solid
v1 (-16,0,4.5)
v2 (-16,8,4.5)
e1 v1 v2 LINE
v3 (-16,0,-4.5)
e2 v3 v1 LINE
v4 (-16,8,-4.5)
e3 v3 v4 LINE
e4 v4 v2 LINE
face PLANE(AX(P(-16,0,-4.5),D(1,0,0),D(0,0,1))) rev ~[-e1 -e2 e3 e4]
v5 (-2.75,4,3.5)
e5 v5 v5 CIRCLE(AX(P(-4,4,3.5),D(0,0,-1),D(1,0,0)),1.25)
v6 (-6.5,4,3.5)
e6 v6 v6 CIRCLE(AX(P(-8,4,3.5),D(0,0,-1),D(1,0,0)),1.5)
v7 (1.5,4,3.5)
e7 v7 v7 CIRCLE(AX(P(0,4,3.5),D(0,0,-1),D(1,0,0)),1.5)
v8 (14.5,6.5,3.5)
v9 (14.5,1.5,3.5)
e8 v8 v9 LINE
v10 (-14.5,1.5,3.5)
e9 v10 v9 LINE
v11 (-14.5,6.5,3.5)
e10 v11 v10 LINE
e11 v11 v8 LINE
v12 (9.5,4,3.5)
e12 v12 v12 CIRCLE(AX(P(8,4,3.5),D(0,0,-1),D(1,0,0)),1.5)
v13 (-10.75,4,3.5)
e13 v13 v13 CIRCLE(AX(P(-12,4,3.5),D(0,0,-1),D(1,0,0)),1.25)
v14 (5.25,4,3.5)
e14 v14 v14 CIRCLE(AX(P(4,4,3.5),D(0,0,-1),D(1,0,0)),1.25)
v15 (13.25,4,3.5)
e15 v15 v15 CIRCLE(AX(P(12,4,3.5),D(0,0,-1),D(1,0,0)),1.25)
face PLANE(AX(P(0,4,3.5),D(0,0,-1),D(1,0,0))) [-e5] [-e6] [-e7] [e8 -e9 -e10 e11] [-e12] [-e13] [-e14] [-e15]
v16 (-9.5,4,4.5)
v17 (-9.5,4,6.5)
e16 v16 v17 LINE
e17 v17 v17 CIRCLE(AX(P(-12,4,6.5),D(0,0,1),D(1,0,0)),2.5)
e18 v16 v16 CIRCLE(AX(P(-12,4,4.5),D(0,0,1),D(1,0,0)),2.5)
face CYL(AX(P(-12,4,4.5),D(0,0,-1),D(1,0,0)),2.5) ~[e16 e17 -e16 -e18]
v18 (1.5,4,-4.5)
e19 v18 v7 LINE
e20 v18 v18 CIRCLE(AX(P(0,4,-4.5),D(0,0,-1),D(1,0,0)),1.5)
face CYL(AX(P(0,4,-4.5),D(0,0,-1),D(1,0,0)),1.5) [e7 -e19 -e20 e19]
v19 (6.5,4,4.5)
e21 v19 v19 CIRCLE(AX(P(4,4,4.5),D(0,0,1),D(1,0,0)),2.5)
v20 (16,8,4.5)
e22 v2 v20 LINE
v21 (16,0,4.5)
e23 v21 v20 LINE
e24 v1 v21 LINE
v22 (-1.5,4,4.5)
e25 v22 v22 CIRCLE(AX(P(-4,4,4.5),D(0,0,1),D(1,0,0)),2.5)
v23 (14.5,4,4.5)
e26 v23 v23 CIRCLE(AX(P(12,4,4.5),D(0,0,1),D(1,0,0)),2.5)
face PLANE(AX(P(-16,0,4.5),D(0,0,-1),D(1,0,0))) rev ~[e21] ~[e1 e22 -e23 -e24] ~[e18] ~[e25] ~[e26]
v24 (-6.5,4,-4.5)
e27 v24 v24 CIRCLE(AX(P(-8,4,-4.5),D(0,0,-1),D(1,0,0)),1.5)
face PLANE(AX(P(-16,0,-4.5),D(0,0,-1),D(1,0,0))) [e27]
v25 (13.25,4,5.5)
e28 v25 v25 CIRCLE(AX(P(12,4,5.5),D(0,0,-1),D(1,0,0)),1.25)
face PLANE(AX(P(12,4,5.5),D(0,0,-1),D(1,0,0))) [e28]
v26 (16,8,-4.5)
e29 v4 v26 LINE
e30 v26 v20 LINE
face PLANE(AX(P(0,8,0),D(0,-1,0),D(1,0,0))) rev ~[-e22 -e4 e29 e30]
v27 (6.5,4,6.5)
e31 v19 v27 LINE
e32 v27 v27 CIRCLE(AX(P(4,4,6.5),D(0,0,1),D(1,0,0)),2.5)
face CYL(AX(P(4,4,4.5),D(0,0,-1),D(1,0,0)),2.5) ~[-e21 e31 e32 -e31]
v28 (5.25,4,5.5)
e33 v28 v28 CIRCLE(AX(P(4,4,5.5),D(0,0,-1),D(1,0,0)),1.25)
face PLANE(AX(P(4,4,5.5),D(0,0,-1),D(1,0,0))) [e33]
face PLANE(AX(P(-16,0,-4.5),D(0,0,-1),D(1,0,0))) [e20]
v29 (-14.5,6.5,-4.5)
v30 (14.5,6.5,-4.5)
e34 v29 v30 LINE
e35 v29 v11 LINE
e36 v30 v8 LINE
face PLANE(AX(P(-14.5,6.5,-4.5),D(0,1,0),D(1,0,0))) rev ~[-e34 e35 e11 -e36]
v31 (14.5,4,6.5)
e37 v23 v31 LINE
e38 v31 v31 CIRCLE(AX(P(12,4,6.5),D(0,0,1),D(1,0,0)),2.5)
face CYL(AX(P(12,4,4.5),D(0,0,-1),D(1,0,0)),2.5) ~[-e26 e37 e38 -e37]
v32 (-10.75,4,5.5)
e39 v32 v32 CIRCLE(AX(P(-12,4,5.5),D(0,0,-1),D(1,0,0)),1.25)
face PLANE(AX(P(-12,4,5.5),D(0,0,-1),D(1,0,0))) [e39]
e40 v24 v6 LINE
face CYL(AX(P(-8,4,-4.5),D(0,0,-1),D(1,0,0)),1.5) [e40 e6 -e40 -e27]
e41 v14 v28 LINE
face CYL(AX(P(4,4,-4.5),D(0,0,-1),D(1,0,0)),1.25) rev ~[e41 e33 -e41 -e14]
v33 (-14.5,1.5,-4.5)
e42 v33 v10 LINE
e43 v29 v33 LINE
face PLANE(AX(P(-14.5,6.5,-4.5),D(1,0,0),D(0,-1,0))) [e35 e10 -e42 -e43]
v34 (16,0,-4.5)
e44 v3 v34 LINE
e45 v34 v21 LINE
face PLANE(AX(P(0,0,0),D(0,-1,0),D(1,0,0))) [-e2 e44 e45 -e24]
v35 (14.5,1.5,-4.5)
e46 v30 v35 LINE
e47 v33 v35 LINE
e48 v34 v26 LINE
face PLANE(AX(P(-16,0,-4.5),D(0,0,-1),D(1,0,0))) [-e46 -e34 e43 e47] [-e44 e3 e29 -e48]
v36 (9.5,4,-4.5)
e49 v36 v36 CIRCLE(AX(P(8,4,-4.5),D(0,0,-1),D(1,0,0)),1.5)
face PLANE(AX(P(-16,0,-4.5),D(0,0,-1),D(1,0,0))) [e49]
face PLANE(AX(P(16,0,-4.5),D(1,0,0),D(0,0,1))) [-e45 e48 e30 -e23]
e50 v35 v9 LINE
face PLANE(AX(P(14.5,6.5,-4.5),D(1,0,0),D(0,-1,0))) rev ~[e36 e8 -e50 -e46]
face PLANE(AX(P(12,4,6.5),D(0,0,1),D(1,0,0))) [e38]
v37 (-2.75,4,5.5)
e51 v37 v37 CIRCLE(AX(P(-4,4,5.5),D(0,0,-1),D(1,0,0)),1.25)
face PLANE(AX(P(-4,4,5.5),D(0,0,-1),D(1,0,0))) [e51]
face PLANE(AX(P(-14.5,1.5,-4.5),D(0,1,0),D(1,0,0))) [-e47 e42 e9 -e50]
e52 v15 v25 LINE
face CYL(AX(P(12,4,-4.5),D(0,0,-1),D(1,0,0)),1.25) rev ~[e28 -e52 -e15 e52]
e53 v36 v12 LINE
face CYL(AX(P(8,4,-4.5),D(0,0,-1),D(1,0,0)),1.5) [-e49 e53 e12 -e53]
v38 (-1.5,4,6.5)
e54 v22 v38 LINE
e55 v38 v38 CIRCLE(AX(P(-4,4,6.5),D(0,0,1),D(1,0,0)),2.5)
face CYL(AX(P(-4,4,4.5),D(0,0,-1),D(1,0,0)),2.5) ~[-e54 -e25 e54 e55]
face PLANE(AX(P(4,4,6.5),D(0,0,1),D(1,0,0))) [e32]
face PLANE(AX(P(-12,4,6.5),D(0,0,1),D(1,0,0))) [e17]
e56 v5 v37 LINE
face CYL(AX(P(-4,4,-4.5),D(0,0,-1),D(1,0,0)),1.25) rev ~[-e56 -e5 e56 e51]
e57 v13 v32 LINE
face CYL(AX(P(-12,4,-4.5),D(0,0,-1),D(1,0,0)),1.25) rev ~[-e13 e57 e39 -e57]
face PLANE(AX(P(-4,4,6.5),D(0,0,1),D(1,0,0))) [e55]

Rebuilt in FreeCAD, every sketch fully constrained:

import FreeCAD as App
import Part
import Sketcher
from FreeCAD import Vector

doc = App.newDocument("Part")
body = doc.addObject("PartDesign::Body", "Body")

# Sketch on XZ plane
sketch1 = body.newObject("Sketcher::SketchObject", "Sketch")
sketch1.AttachmentSupport = (doc.getObject("XZ_Plane"), [""])
sketch1.MapMode = "FlatFace"
sketch1.addGeometry([
    Part.LineSegment(Vector(-16, 4.5, 0), Vector(-16, -4.5, 0)),
    Part.LineSegment(Vector(-16, -4.5, 0), Vector(16, -4.5, 0)),
    Part.LineSegment(Vector(16, -4.5, 0), Vector(16, 4.5, 0)),
    Part.LineSegment(Vector(16, 4.5, 0), Vector(-16, 4.5, 0)),
], False)
sketch1.addConstraint([
    Sketcher.Constraint("Coincident", 0, 2, 1, 1),
    Sketcher.Constraint("Coincident", 1, 2, 2, 1),
    Sketcher.Constraint("Coincident", 2, 2, 3, 1),
    Sketcher.Constraint("Coincident", 3, 2, 0, 1),
    Sketcher.Constraint("Vertical", 0),
    Sketcher.Constraint("Horizontal", 1),
    Sketcher.Constraint("Vertical", 2),
    Sketcher.Constraint("Horizontal", 3),
    Sketcher.Constraint("Symmetric", 0, 2, 2, 2, -1, 1),
    Sketcher.Constraint("DistanceX", 1, 1, 1, 2, 32.0),
    Sketcher.Constraint("DistanceY", 0, 2, 0, 1, 9.0),
])
pad1 = body.newObject("PartDesign::Pad", "Pad")
pad1.Profile = sketch1
pad1.Length = 8
pad1.Reversed = True

# Sketch on XY plane
sketch2 = body.newObject("Sketcher::SketchObject", "Sketch001")
sketch2.AttachmentSupport = (doc.getObject("XY_Plane"), [""])
sketch2.MapMode = "FlatFace"
sketch2.AttachmentOffset = App.Placement(Vector(0, 0, 4.5), App.Rotation())
sketch2.addGeometry([
    Part.Circle(Vector(-12, 4, 0), Vector(0, 0, 1), 2.5),
    Part.Circle(Vector(-4, 4, 0), Vector(0, 0, 1), 2.5),
    Part.Circle(Vector(4, 4, 0), Vector(0, 0, 1), 2.5),
    Part.Circle(Vector(12, 4, 0), Vector(0, 0, 1), 2.5),
], False)
sketch2.addConstraint([
    Sketcher.Constraint("Equal", 0, 1),
    Sketcher.Constraint("Equal", 1, 2),
    Sketcher.Constraint("Equal", 2, 3),
    Sketcher.Constraint("Symmetric", 1, 3, 2, 3, -2),
    Sketcher.Constraint("Symmetric", 0, 3, 3, 3, -2),
    Sketcher.Constraint("Horizontal", 0, 3, 1, 3),
    Sketcher.Constraint("Diameter", 0, 5.0),
    Sketcher.Constraint("DistanceX", 0, 3, -1, 1, 12.0),
    Sketcher.Constraint("DistanceY", -1, 1, 0, 3, 4.0),
    Sketcher.Constraint("DistanceX", 1, 3, -1, 1, 4.0),
])
pad2 = body.newObject("PartDesign::Pad", "Pad001")
pad2.Profile = sketch2
pad2.Length = 2

# Sketch on XY plane
sketch3 = body.newObject("Sketcher::SketchObject", "Sketch002")
sketch3.AttachmentSupport = (doc.getObject("XY_Plane"), [""])
sketch3.MapMode = "FlatFace"
sketch3.AttachmentOffset = App.Placement(Vector(0, 0, -4.5), App.Rotation())
sketch3.addGeometry([
    Part.LineSegment(Vector(-14.5, 1.5, 0), Vector(-14.5, 6.5, 0)),  # 0
    Part.LineSegment(Vector(-14.5, 6.5, 0), Vector(14.5, 6.5, 0)),  # 1
    Part.LineSegment(Vector(14.5, 6.5, 0), Vector(14.5, 1.5, 0)),  # 2
    Part.LineSegment(Vector(14.5, 1.5, 0), Vector(-14.5, 1.5, 0)),  # 3
    Part.Circle(Vector(-8, 4, 0), Vector(0, 0, 1), 1.5),  # 4
    Part.Circle(Vector(0, 4, 0), Vector(0, 0, 1), 1.5),  # 5
    Part.Circle(Vector(8, 4, 0), Vector(0, 0, 1), 1.5),  # 6
], False)
sketch3.addConstraint([
    Sketcher.Constraint("Coincident", 0, 2, 1, 1),
    Sketcher.Constraint("Coincident", 1, 2, 2, 1),
    Sketcher.Constraint("Coincident", 2, 2, 3, 1),
    Sketcher.Constraint("Coincident", 3, 2, 0, 1),
    Sketcher.Constraint("Vertical", 0),
    Sketcher.Constraint("Horizontal", 1),
    Sketcher.Constraint("Vertical", 2),
    Sketcher.Constraint("Horizontal", 3),
    Sketcher.Constraint("Equal", 4, 5),
    Sketcher.Constraint("Equal", 5, 6),
    Sketcher.Constraint("Symmetric", 4, 3, 6, 3, -2),
    Sketcher.Constraint("PointOnObject", 5, 3, -2),
    Sketcher.Constraint("Horizontal", 4, 3, 5, 3),
    Sketcher.Constraint("Diameter", 4, 3.0),
    Sketcher.Constraint("DistanceX", 1, 1, 1, 2, 29.0),
    Sketcher.Constraint("DistanceY", 0, 1, 0, 2, 5.0),
    Sketcher.Constraint("DistanceX", 4, 3, -1, 1, 8.0),
    Sketcher.Constraint("DistanceY", -1, 1, 4, 3, 4.0),
    Sketcher.Constraint("DistanceX", 0, 2, -1, 1, 14.5),
    Sketcher.Constraint("DistanceY", -1, 1, 0, 2, 6.5),
])
pocket1 = body.newObject("PartDesign::Pocket", "Pocket")
pocket1.Profile = sketch3
pocket1.Length = 8
pocket1.Reversed = True

# Sketch on XY plane
sketch4 = body.newObject("Sketcher::SketchObject", "Sketch003")
sketch4.AttachmentSupport = (doc.getObject("XY_Plane"), [""])
sketch4.MapMode = "FlatFace"
sketch4.AttachmentOffset = App.Placement(Vector(0, 0, -4.5), App.Rotation())
sketch4.addGeometry([
    Part.Circle(Vector(-12, 4, 0), Vector(0, 0, 1), 1.25),
    Part.Circle(Vector(-4, 4, 0), Vector(0, 0, 1), 1.25),
    Part.Circle(Vector(4, 4, 0), Vector(0, 0, 1), 1.25),
    Part.Circle(Vector(12, 4, 0), Vector(0, 0, 1), 1.25),
], False)
sketch4.addConstraint([
    Sketcher.Constraint("Equal", 0, 1),
    Sketcher.Constraint("Equal", 1, 2),
    Sketcher.Constraint("Equal", 2, 3),
    Sketcher.Constraint("Symmetric", 1, 3, 2, 3, -2),
    Sketcher.Constraint("Symmetric", 0, 3, 3, 3, -2),
    Sketcher.Constraint("Horizontal", 0, 3, 1, 3),
    Sketcher.Constraint("Diameter", 0, 2.5),
    Sketcher.Constraint("DistanceX", 0, 3, -1, 1, 12.0),
    Sketcher.Constraint("DistanceY", -1, 1, 0, 3, 4.0),
    Sketcher.Constraint("DistanceX", 1, 3, -1, 1, 4.0),
])
pocket2 = body.newObject("PartDesign::Pocket", "Pocket001")
pocket2.Profile = sketch4
pocket2.Length = 10
pocket2.Reversed = True

doc.recompute()
